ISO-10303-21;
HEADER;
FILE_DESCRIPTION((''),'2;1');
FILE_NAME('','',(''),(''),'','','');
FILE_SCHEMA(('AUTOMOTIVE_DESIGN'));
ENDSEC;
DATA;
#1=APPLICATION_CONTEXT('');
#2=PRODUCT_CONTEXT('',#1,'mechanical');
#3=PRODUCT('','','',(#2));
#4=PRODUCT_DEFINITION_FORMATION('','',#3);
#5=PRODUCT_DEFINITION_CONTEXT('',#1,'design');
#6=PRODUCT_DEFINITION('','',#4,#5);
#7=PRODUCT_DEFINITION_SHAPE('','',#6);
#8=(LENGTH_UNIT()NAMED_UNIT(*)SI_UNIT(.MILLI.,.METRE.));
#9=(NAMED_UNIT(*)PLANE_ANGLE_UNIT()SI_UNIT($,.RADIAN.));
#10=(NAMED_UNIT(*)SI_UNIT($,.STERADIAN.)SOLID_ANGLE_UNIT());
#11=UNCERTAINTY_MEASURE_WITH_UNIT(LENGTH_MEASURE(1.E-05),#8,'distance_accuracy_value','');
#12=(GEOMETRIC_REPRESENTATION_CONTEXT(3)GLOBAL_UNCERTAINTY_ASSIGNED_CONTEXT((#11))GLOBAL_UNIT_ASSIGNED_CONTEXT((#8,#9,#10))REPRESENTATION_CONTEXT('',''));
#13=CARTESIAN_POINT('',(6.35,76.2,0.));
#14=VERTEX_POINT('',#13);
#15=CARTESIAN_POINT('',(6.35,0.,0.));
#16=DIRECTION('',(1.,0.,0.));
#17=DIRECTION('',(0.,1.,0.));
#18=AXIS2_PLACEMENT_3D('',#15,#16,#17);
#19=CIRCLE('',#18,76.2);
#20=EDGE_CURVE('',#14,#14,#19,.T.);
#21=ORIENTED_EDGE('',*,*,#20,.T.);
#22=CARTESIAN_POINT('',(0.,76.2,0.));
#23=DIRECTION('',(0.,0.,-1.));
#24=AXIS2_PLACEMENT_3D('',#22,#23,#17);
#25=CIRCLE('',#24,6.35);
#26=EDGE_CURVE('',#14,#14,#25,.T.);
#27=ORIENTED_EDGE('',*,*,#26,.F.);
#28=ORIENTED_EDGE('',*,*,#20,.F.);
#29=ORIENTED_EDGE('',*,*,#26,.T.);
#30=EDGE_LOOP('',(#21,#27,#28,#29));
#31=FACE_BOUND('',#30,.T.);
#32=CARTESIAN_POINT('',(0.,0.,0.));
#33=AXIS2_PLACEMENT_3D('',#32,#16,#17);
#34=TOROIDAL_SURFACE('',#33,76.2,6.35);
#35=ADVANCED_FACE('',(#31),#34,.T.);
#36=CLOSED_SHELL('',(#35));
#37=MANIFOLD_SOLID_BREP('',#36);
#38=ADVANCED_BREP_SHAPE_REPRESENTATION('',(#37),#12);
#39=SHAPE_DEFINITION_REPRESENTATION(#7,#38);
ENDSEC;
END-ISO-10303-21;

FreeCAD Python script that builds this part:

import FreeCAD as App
import Part
import Sketcher
from FreeCAD import Vector
Q = App.Units.Quantity

doc = App.newDocument("Part")
body = doc.addObject("PartDesign::Body", "Body")

# Sketch on XZ plane
sketch1 = body.newObject("Sketcher::SketchObject", "Sketch")
sketch1.AttachmentSupport = (doc.getObject("XZ_Plane"), [""])
sketch1.MapMode = "FlatFace"
sketch1.addGeometry(Part.Circle(Vector(0, 76, 0), Vector(0, 0, 1), 6), False)
sketch1.addConstraint(Sketcher.Constraint("PointOnObject", 0, 3, -2))
sketch1.addConstraint(Sketcher.Constraint("Diameter", 0, Q("0.5 in")))
sketch1.addConstraint(Sketcher.Constraint("DistanceY", -1, 1, 0, 3, Q("3 in")))

# Sketch on YZ plane
sketch2 = body.newObject("Sketcher::SketchObject", "Sketch001")
sketch2.AttachmentSupport = (doc.getObject("YZ_Plane"), [""])
sketch2.MapMode = "FlatFace"
sketch2.addGeometry(Part.Circle(Vector(0, 0, 0), Vector(0, 0, 1), 76), False)
sketch2.addConstraint(Sketcher.Constraint("Coincident", 0, 3, -1, 1))
sketch2.addConstraint(Sketcher.Constraint("Diameter", 0, Q("6 in")))
doc.recompute()

additivepipe = body.newObject("PartDesign::AdditivePipe", "AdditivePipe")
additivepipe.Profile = sketch1
additivepipe.Spine = (sketch2, ["Edge1"])

doc.recompute()
